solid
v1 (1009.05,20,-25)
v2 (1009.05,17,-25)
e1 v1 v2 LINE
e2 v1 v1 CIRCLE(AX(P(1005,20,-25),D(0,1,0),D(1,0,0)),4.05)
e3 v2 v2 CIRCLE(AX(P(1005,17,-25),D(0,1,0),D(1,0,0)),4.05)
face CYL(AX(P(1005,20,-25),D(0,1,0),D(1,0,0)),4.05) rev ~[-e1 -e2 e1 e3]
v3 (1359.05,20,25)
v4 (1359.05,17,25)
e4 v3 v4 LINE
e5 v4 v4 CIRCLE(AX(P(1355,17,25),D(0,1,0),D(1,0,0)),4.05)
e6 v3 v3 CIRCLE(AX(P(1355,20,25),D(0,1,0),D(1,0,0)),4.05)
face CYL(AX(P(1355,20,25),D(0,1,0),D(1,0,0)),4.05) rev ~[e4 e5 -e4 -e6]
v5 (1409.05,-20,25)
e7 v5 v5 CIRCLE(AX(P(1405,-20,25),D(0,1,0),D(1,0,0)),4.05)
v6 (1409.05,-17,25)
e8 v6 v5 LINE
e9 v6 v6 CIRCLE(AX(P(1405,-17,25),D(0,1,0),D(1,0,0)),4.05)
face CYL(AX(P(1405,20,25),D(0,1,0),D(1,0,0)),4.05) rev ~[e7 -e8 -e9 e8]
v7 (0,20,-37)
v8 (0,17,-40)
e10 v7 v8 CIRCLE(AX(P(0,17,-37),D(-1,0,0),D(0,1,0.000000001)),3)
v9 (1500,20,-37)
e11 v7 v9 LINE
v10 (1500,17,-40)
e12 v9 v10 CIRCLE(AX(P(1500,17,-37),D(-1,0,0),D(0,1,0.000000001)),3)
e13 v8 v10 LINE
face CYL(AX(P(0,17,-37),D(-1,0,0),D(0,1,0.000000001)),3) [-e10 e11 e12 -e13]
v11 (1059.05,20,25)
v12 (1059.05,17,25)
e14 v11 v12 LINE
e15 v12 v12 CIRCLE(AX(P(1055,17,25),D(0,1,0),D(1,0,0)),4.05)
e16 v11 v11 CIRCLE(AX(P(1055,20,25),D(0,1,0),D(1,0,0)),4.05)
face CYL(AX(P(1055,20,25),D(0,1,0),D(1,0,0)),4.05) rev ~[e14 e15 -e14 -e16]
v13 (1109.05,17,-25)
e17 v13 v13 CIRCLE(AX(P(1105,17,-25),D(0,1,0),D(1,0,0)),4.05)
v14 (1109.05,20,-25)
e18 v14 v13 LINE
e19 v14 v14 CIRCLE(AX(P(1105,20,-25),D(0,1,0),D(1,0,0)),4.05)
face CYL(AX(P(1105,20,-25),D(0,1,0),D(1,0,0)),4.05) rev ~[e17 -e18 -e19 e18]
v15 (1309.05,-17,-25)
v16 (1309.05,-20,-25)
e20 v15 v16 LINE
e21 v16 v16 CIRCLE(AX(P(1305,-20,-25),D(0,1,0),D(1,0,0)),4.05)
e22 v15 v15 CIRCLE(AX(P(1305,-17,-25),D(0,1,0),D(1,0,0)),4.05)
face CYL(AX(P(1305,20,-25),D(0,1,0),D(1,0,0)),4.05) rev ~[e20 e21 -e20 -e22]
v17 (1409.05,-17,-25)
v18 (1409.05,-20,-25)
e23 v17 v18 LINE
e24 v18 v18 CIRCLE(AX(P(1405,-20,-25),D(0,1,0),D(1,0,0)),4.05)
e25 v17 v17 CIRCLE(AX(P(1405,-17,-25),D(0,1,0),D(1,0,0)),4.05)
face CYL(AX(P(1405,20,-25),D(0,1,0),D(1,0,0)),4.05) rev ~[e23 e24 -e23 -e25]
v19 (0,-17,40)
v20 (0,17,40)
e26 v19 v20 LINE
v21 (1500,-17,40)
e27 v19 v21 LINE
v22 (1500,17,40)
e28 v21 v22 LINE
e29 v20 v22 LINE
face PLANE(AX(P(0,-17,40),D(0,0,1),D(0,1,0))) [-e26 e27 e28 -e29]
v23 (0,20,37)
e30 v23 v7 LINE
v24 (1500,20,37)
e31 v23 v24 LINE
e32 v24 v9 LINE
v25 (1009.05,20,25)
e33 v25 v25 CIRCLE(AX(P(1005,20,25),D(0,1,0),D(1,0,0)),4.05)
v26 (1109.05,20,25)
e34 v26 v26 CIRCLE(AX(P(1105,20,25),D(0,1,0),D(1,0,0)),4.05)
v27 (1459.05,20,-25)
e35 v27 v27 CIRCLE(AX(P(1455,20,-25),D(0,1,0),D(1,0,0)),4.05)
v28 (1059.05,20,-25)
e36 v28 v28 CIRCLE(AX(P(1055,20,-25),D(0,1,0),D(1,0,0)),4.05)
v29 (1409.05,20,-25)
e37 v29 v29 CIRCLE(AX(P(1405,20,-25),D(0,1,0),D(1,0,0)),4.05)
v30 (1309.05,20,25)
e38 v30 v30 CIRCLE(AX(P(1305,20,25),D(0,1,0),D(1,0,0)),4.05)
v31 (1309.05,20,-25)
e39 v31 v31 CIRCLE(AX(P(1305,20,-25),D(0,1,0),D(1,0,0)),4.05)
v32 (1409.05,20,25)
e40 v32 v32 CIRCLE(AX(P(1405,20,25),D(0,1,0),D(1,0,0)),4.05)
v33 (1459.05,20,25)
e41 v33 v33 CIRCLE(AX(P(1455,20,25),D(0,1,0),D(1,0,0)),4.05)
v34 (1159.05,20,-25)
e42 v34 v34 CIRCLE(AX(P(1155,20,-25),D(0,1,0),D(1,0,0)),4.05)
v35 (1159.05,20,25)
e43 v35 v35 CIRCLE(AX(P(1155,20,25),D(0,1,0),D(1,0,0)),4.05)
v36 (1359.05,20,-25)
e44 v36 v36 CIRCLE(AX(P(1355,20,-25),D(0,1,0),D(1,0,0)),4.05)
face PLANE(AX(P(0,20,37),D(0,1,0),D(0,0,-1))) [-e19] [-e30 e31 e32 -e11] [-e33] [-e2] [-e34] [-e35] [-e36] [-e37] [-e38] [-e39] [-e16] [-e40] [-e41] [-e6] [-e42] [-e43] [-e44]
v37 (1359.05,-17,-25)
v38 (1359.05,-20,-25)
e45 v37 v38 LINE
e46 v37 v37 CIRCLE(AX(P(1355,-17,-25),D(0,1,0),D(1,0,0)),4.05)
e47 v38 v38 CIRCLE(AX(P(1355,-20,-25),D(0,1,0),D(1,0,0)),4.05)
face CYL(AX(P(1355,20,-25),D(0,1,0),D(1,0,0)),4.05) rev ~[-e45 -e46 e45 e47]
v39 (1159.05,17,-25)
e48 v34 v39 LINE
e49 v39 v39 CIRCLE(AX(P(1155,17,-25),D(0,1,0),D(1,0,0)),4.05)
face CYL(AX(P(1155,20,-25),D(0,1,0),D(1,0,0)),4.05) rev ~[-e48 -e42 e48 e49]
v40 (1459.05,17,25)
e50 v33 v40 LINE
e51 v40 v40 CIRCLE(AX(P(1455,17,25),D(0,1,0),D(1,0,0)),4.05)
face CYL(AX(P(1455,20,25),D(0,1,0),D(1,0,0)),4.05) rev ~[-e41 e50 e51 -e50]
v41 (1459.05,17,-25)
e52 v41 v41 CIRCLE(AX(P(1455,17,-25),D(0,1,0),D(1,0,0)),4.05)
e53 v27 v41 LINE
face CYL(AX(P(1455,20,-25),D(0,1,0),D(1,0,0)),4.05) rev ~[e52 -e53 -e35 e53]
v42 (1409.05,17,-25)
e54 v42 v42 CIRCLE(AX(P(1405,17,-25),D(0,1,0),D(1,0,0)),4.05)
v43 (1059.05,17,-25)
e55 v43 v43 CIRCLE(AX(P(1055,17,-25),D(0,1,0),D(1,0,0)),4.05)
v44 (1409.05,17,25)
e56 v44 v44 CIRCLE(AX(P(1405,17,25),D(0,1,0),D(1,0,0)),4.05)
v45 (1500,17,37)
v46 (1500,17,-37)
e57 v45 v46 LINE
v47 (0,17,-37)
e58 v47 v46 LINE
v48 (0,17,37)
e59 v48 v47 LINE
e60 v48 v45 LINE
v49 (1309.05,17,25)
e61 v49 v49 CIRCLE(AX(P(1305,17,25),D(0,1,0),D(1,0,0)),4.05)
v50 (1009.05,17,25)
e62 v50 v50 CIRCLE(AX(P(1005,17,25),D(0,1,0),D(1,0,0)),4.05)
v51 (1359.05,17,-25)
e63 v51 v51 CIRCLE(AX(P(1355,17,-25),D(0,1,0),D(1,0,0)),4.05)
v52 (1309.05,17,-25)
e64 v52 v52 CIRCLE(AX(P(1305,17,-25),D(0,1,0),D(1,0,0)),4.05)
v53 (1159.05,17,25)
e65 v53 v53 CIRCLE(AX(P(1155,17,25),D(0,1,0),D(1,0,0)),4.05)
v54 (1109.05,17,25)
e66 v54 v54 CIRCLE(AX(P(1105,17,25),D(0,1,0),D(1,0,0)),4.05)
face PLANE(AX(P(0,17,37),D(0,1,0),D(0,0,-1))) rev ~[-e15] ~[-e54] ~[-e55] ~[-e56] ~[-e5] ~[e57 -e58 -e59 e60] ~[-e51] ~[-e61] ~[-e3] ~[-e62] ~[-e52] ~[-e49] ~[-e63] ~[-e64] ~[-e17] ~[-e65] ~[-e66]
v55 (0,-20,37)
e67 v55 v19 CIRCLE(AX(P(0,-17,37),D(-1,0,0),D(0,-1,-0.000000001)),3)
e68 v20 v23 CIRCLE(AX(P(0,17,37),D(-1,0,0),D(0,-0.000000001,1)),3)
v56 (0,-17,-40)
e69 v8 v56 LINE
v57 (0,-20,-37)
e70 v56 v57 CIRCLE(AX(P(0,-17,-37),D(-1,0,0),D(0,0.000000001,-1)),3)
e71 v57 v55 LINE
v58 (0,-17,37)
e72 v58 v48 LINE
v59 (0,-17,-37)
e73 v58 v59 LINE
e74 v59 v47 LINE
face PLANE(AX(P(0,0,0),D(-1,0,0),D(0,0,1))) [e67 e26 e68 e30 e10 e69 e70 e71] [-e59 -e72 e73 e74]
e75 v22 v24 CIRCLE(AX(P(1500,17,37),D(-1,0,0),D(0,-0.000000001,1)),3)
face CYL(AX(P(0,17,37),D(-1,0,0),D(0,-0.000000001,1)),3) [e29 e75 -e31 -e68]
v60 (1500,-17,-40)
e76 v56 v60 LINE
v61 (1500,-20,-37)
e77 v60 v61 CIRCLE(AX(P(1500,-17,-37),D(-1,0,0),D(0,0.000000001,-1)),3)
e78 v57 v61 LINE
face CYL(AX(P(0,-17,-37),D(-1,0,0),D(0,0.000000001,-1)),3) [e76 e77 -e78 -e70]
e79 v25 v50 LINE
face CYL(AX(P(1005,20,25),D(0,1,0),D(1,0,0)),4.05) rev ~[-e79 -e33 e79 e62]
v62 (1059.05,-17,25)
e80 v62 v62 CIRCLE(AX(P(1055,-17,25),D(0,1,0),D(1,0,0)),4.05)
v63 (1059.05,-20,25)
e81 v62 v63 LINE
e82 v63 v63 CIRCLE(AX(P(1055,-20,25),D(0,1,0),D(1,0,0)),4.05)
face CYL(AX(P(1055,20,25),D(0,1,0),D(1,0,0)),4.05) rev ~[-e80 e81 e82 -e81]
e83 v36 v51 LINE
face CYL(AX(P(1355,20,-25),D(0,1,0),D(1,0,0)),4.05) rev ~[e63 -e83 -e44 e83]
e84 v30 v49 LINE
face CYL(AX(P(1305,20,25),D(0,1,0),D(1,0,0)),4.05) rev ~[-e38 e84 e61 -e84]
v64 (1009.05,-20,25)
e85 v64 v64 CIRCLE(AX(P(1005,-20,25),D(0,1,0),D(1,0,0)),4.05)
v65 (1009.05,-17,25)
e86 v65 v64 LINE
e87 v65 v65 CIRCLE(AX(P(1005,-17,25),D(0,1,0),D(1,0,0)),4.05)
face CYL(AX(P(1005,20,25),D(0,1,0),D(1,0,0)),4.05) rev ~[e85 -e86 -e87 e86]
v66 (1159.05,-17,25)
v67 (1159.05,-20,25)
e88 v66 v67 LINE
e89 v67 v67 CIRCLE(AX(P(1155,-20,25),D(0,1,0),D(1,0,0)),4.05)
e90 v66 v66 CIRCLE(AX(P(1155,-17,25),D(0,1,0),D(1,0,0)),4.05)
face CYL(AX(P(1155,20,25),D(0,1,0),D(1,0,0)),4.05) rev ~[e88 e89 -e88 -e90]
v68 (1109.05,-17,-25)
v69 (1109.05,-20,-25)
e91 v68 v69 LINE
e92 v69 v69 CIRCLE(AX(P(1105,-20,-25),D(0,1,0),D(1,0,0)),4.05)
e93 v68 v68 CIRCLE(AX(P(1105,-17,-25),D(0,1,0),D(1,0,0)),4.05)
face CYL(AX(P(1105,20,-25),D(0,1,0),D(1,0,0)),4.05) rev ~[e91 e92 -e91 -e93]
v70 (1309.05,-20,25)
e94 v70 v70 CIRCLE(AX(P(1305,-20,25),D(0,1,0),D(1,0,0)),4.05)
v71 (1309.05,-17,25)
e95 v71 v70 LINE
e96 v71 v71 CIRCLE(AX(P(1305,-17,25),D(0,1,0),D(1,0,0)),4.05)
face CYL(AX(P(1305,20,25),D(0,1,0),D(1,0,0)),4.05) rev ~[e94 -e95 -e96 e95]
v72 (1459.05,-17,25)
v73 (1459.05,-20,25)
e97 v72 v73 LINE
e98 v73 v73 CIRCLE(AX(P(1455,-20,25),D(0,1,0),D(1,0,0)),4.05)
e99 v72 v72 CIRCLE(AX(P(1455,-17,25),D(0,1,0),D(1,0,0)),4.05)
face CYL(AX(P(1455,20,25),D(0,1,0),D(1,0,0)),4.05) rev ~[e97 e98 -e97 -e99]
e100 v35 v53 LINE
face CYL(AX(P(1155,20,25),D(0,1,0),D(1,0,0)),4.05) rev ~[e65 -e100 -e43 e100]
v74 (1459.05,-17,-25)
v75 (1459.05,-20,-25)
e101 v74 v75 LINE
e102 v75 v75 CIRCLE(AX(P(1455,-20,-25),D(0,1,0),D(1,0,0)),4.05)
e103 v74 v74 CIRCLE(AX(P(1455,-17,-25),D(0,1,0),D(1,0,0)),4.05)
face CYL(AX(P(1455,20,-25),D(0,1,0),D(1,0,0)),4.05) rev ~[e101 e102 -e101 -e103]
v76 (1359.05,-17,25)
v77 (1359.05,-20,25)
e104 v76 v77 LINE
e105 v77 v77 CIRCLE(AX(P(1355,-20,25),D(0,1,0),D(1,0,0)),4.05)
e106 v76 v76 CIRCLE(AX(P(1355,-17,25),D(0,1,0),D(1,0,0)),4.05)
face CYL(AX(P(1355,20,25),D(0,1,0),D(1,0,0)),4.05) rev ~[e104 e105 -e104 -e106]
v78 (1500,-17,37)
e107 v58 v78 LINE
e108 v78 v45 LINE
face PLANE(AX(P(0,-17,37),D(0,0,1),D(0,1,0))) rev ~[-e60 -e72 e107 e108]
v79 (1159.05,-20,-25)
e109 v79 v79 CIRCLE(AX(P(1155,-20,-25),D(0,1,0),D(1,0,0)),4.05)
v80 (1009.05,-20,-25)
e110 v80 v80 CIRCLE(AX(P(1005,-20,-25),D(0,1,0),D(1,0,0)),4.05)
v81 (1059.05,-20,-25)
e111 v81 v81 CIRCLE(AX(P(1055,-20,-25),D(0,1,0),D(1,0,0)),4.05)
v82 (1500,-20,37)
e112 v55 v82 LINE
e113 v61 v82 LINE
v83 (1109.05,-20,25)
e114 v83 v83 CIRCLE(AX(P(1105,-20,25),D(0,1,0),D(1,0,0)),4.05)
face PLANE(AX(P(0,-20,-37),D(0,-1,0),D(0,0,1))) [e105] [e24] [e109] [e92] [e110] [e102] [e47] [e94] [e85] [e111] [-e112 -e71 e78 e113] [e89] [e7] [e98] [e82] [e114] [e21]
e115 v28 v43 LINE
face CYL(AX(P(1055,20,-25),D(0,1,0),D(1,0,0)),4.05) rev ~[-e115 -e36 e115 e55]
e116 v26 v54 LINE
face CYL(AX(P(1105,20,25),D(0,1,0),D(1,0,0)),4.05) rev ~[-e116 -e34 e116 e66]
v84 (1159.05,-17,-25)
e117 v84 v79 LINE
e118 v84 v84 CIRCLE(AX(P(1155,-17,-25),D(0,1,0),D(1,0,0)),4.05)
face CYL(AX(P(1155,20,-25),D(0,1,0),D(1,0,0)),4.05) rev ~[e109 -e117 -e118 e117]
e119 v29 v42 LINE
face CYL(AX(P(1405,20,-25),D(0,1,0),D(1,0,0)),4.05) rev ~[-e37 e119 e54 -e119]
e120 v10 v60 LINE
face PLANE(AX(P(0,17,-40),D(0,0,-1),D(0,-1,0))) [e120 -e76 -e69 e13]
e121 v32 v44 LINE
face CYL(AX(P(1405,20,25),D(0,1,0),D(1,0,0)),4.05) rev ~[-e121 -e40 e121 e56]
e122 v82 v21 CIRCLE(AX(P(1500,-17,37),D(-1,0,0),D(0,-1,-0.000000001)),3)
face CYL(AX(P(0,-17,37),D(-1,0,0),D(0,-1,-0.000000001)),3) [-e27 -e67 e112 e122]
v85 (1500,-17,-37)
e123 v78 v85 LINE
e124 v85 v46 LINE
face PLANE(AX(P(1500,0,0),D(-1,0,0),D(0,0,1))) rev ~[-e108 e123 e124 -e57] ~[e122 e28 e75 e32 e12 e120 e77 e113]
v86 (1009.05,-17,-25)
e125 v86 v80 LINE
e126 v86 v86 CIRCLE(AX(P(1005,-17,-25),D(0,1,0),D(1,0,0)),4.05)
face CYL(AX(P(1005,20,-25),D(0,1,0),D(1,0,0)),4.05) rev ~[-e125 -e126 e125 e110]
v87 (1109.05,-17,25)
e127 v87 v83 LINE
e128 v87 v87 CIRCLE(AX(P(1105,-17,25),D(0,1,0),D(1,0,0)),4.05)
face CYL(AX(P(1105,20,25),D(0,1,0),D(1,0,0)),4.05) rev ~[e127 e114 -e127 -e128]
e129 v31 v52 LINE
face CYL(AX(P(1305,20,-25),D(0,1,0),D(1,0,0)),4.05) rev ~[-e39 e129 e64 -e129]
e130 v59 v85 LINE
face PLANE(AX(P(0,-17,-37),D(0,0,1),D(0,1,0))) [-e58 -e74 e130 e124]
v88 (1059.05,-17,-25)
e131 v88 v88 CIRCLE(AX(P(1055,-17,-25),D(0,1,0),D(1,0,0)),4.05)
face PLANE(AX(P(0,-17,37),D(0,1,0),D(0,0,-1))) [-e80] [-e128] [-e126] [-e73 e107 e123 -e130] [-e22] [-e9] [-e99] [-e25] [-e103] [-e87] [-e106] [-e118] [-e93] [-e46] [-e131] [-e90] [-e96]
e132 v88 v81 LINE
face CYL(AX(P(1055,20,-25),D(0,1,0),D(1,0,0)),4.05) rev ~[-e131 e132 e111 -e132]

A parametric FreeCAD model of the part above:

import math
import FreeCAD as App
import Part
import Sketcher

V = App.Vector


def add_polygon(sketch, points):
    """Adds a closed chain of lines whose ends are joined by coincident constraints."""
    first, n = sketch.GeometryCount, len(points)
    for a, b in zip(points, points[1:] + points[:1]):
        sketch.addGeometry(Part.LineSegment(App.Vector(*a, 0), App.Vector(*b, 0)), False)
    for i in range(n):
        sketch.addConstraint(Sketcher.Constraint("Coincident", first + i, 2, first + (i + 1) % n, 1))

doc = App.newDocument("Part")
body = doc.addObject("PartDesign::Body", "Body")

sketch1 = doc.addObject("Sketcher::SketchObject", "Sketch")
body.addObject(sketch1)
sketch1.AttachmentSupport = (doc.YZ_Plane, [""])
sketch1.MapMode = "FlatFace"
sketch1.addGeometry(Part.LineSegment(V(-17, -40, 0), V(17, -40, 0)), False)
sketch1.addGeometry(Part.ArcOfCircle(Part.Circle(V(17, -37, 0), V(0, 0, 1), 3), math.radians(-90), math.radians(0)), False)
sketch1.addGeometry(Part.LineSegment(V(20, -37, 0), V(20, 37, 0)), False)
sketch1.addGeometry(Part.ArcOfCircle(Part.Circle(V(17, 37, 0), V(0, 0, 1), 3), math.radians(0), math.radians(90)), False)
sketch1.addGeometry(Part.LineSegment(V(17, 40, 0), V(-17, 40, 0)), False)
sketch1.addGeometry(Part.ArcOfCircle(Part.Circle(V(-17, 37, 0), V(0, 0, 1), 3), math.radians(90), math.radians(180)), False)
sketch1.addGeometry(Part.LineSegment(V(-20, 37, 0), V(-20, -37, 0)), False)
sketch1.addGeometry(Part.ArcOfCircle(Part.Circle(V(-17, -37, 0), V(0, 0, 1), 3), math.radians(180), math.radians(270)), False)
add_polygon(sketch1, [(-17, 37), (17, 37), (17, -37), (-17, -37)])
sketch1.addConstraint([
    Sketcher.Constraint("Tangent", 0, 2, 1, 1),
    Sketcher.Constraint("Tangent", 1, 2, 2, 1),
    Sketcher.Constraint("Tangent", 2, 2, 3, 1),
    Sketcher.Constraint("Tangent", 3, 2, 4, 1),
    Sketcher.Constraint("Tangent", 4, 2, 5, 1),
    Sketcher.Constraint("Tangent", 5, 2, 6, 1),
    Sketcher.Constraint("Tangent", 6, 2, 7, 1),
    Sketcher.Constraint("Tangent", 7, 2, 0, 1),
    Sketcher.Constraint("Horizontal", 0),
    Sketcher.Constraint("Vertical", 2),
    Sketcher.Constraint("Horizontal", 4),
    Sketcher.Constraint("Vertical", 6),
    Sketcher.Constraint("Horizontal", 8),
    Sketcher.Constraint("Vertical", 9),
    Sketcher.Constraint("Horizontal", 10),
    Sketcher.Constraint("Vertical", 11),
    Sketcher.Constraint("Coincident", 8, 2, 3, 3),
    Sketcher.Constraint("Coincident", 9, 2, 1, 3),
    Sketcher.Constraint("Coincident", 10, 2, 7, 3),
    Sketcher.Constraint("Equal", 3, 5),
    Sketcher.Constraint("Symmetric", 1, 3, 5, 3, -1, 1),
    Sketcher.Constraint("Radius", 1, 3.0),
    Sketcher.Constraint("DistanceX", 0, 1, 0, 2, 34.0),
    Sketcher.Constraint("DistanceY", 2, 1, 2, 2, 74.0),
])
pad1 = doc.addObject("PartDesign::Pad", "Pad")
body.addObject(pad1)
pad1.Profile = sketch1
pad1.Length = 1500

sketch2 = doc.addObject("Sketcher::SketchObject", "Sketch001")
body.addObject(sketch2)
sketch2.AttachmentSupport = (doc.XZ_Plane, [""])
sketch2.MapMode = "FlatFace"
sketch2.AttachmentOffset = App.Placement(V(0, 0, -20), App.Rotation())
sketch2.addGeometry([
    Part.Circle(V(1455, 25, 0), V(0, 0, 1), 4),
    Part.Circle(V(1405, 25, 0), V(0, 0, 1), 4),
    Part.Circle(V(1355, 25, 0), V(0, 0, 1), 4),
    Part.Circle(V(1305, 25, 0), V(0, 0, 1), 4),
    Part.Circle(V(1155, 25, 0), V(0, 0, 1), 4),
    Part.Circle(V(1105, 25, 0), V(0, 0, 1), 4),
    Part.Circle(V(1055, 25, 0), V(0, 0, 1), 4),
    Part.Circle(V(1005, 25, 0), V(0, 0, 1), 4),
    Part.Circle(V(1005, -25, 0), V(0, 0, 1), 4),
    Part.Circle(V(1055, -25, 0), V(0, 0, 1), 4),
    Part.Circle(V(1105, -25, 0), V(0, 0, 1), 4),
    Part.Circle(V(1155, -25, 0), V(0, 0, 1), 4),
    Part.Circle(V(1305, -25, 0), V(0, 0, 1), 4),
    Part.Circle(V(1355, -25, 0), V(0, 0, 1), 4),
    Part.Circle(V(1405, -25, 0), V(0, 0, 1), 4),
    Part.Circle(V(1455, -25, 0), V(0, 0, 1), 4),
], False)
sketch2.addConstraint([
    Sketcher.Constraint("Equal", 0, 1),
    Sketcher.Constraint("Equal", 1, 2),
    Sketcher.Constraint("Equal", 2, 3),
    Sketcher.Constraint("Equal", 3, 4),
    Sketcher.Constraint("Equal", 4, 5),
    Sketcher.Constraint("Equal", 5, 6),
    Sketcher.Constraint("Equal", 6, 7),
    Sketcher.Constraint("Equal", 7, 8),
    Sketcher.Constraint("Equal", 8, 9),
    Sketcher.Constraint("Equal", 9, 10),
    Sketcher.Constraint("Equal", 10, 11),
    Sketcher.Constraint("Equal", 11, 12),
    Sketcher.Constraint("Equal", 12, 13),
    Sketcher.Constraint("Equal", 13, 14),
    Sketcher.Constraint("Equal", 14, 15),
    Sketcher.Constraint("Symmetric", 7, 3, 8, 3, -1),
    Sketcher.Constraint("Symmetric", 6, 3, 9, 3, -1),
    Sketcher.Constraint("Symmetric", 5, 3, 10, 3, -1),
    Sketcher.Constraint("Symmetric", 4, 3, 11, 3, -1),
    Sketcher.Constraint("Symmetric", 3, 3, 12, 3, -1),
    Sketcher.Constraint("Symmetric", 2, 3, 13, 3, -1),
    Sketcher.Constraint("Symmetric", 1, 3, 14, 3, -1),
    Sketcher.Constraint("Symmetric", 0, 3, 15, 3, -1),
    Sketcher.Constraint("Horizontal", 0, 3, 1, 3),
    Sketcher.Constraint("Horizontal", 1, 3, 2, 3),
    Sketcher.Constraint("Horizontal", 2, 3, 3, 3),
    Sketcher.Constraint("Horizontal", 3, 3, 4, 3),
    Sketcher.Constraint("Horizontal", 4, 3, 5, 3),
    Sketcher.Constraint("Horizontal", 5, 3, 6, 3),
    Sketcher.Constraint("Horizontal", 6, 3, 7, 3),
    Sketcher.Constraint("Diameter", 0, 8.1),
    Sketcher.Constraint("DistanceX", -1, 1, 0, 3, 1455.0),
    Sketcher.Constraint("DistanceY", -1, 1, 0, 3, 25.0),
    Sketcher.Constraint("DistanceX", -1, 1, 1, 3, 1405.0),
    Sketcher.Constraint("DistanceX", -1, 1, 2, 3, 1355.0),
    Sketcher.Constraint("DistanceX", -1, 1, 3, 3, 1305.0),
    Sketcher.Constraint("DistanceX", -1, 1, 4, 3, 1155.0),
    Sketcher.Constraint("DistanceX", -1, 1, 5, 3, 1105.0),
    Sketcher.Constraint("DistanceX", -1, 1, 6, 3, 1055.0),
    Sketcher.Constraint("DistanceX", -1, 1, 7, 3, 1005.0),
])
pocket1 = doc.addObject("PartDesign::Pocket", "Pocket")
body.addObject(pocket1)
pocket1.Profile = sketch2
pocket1.Type = "ThroughAll"
pocket1.Reversed = True

doc.recompute()
